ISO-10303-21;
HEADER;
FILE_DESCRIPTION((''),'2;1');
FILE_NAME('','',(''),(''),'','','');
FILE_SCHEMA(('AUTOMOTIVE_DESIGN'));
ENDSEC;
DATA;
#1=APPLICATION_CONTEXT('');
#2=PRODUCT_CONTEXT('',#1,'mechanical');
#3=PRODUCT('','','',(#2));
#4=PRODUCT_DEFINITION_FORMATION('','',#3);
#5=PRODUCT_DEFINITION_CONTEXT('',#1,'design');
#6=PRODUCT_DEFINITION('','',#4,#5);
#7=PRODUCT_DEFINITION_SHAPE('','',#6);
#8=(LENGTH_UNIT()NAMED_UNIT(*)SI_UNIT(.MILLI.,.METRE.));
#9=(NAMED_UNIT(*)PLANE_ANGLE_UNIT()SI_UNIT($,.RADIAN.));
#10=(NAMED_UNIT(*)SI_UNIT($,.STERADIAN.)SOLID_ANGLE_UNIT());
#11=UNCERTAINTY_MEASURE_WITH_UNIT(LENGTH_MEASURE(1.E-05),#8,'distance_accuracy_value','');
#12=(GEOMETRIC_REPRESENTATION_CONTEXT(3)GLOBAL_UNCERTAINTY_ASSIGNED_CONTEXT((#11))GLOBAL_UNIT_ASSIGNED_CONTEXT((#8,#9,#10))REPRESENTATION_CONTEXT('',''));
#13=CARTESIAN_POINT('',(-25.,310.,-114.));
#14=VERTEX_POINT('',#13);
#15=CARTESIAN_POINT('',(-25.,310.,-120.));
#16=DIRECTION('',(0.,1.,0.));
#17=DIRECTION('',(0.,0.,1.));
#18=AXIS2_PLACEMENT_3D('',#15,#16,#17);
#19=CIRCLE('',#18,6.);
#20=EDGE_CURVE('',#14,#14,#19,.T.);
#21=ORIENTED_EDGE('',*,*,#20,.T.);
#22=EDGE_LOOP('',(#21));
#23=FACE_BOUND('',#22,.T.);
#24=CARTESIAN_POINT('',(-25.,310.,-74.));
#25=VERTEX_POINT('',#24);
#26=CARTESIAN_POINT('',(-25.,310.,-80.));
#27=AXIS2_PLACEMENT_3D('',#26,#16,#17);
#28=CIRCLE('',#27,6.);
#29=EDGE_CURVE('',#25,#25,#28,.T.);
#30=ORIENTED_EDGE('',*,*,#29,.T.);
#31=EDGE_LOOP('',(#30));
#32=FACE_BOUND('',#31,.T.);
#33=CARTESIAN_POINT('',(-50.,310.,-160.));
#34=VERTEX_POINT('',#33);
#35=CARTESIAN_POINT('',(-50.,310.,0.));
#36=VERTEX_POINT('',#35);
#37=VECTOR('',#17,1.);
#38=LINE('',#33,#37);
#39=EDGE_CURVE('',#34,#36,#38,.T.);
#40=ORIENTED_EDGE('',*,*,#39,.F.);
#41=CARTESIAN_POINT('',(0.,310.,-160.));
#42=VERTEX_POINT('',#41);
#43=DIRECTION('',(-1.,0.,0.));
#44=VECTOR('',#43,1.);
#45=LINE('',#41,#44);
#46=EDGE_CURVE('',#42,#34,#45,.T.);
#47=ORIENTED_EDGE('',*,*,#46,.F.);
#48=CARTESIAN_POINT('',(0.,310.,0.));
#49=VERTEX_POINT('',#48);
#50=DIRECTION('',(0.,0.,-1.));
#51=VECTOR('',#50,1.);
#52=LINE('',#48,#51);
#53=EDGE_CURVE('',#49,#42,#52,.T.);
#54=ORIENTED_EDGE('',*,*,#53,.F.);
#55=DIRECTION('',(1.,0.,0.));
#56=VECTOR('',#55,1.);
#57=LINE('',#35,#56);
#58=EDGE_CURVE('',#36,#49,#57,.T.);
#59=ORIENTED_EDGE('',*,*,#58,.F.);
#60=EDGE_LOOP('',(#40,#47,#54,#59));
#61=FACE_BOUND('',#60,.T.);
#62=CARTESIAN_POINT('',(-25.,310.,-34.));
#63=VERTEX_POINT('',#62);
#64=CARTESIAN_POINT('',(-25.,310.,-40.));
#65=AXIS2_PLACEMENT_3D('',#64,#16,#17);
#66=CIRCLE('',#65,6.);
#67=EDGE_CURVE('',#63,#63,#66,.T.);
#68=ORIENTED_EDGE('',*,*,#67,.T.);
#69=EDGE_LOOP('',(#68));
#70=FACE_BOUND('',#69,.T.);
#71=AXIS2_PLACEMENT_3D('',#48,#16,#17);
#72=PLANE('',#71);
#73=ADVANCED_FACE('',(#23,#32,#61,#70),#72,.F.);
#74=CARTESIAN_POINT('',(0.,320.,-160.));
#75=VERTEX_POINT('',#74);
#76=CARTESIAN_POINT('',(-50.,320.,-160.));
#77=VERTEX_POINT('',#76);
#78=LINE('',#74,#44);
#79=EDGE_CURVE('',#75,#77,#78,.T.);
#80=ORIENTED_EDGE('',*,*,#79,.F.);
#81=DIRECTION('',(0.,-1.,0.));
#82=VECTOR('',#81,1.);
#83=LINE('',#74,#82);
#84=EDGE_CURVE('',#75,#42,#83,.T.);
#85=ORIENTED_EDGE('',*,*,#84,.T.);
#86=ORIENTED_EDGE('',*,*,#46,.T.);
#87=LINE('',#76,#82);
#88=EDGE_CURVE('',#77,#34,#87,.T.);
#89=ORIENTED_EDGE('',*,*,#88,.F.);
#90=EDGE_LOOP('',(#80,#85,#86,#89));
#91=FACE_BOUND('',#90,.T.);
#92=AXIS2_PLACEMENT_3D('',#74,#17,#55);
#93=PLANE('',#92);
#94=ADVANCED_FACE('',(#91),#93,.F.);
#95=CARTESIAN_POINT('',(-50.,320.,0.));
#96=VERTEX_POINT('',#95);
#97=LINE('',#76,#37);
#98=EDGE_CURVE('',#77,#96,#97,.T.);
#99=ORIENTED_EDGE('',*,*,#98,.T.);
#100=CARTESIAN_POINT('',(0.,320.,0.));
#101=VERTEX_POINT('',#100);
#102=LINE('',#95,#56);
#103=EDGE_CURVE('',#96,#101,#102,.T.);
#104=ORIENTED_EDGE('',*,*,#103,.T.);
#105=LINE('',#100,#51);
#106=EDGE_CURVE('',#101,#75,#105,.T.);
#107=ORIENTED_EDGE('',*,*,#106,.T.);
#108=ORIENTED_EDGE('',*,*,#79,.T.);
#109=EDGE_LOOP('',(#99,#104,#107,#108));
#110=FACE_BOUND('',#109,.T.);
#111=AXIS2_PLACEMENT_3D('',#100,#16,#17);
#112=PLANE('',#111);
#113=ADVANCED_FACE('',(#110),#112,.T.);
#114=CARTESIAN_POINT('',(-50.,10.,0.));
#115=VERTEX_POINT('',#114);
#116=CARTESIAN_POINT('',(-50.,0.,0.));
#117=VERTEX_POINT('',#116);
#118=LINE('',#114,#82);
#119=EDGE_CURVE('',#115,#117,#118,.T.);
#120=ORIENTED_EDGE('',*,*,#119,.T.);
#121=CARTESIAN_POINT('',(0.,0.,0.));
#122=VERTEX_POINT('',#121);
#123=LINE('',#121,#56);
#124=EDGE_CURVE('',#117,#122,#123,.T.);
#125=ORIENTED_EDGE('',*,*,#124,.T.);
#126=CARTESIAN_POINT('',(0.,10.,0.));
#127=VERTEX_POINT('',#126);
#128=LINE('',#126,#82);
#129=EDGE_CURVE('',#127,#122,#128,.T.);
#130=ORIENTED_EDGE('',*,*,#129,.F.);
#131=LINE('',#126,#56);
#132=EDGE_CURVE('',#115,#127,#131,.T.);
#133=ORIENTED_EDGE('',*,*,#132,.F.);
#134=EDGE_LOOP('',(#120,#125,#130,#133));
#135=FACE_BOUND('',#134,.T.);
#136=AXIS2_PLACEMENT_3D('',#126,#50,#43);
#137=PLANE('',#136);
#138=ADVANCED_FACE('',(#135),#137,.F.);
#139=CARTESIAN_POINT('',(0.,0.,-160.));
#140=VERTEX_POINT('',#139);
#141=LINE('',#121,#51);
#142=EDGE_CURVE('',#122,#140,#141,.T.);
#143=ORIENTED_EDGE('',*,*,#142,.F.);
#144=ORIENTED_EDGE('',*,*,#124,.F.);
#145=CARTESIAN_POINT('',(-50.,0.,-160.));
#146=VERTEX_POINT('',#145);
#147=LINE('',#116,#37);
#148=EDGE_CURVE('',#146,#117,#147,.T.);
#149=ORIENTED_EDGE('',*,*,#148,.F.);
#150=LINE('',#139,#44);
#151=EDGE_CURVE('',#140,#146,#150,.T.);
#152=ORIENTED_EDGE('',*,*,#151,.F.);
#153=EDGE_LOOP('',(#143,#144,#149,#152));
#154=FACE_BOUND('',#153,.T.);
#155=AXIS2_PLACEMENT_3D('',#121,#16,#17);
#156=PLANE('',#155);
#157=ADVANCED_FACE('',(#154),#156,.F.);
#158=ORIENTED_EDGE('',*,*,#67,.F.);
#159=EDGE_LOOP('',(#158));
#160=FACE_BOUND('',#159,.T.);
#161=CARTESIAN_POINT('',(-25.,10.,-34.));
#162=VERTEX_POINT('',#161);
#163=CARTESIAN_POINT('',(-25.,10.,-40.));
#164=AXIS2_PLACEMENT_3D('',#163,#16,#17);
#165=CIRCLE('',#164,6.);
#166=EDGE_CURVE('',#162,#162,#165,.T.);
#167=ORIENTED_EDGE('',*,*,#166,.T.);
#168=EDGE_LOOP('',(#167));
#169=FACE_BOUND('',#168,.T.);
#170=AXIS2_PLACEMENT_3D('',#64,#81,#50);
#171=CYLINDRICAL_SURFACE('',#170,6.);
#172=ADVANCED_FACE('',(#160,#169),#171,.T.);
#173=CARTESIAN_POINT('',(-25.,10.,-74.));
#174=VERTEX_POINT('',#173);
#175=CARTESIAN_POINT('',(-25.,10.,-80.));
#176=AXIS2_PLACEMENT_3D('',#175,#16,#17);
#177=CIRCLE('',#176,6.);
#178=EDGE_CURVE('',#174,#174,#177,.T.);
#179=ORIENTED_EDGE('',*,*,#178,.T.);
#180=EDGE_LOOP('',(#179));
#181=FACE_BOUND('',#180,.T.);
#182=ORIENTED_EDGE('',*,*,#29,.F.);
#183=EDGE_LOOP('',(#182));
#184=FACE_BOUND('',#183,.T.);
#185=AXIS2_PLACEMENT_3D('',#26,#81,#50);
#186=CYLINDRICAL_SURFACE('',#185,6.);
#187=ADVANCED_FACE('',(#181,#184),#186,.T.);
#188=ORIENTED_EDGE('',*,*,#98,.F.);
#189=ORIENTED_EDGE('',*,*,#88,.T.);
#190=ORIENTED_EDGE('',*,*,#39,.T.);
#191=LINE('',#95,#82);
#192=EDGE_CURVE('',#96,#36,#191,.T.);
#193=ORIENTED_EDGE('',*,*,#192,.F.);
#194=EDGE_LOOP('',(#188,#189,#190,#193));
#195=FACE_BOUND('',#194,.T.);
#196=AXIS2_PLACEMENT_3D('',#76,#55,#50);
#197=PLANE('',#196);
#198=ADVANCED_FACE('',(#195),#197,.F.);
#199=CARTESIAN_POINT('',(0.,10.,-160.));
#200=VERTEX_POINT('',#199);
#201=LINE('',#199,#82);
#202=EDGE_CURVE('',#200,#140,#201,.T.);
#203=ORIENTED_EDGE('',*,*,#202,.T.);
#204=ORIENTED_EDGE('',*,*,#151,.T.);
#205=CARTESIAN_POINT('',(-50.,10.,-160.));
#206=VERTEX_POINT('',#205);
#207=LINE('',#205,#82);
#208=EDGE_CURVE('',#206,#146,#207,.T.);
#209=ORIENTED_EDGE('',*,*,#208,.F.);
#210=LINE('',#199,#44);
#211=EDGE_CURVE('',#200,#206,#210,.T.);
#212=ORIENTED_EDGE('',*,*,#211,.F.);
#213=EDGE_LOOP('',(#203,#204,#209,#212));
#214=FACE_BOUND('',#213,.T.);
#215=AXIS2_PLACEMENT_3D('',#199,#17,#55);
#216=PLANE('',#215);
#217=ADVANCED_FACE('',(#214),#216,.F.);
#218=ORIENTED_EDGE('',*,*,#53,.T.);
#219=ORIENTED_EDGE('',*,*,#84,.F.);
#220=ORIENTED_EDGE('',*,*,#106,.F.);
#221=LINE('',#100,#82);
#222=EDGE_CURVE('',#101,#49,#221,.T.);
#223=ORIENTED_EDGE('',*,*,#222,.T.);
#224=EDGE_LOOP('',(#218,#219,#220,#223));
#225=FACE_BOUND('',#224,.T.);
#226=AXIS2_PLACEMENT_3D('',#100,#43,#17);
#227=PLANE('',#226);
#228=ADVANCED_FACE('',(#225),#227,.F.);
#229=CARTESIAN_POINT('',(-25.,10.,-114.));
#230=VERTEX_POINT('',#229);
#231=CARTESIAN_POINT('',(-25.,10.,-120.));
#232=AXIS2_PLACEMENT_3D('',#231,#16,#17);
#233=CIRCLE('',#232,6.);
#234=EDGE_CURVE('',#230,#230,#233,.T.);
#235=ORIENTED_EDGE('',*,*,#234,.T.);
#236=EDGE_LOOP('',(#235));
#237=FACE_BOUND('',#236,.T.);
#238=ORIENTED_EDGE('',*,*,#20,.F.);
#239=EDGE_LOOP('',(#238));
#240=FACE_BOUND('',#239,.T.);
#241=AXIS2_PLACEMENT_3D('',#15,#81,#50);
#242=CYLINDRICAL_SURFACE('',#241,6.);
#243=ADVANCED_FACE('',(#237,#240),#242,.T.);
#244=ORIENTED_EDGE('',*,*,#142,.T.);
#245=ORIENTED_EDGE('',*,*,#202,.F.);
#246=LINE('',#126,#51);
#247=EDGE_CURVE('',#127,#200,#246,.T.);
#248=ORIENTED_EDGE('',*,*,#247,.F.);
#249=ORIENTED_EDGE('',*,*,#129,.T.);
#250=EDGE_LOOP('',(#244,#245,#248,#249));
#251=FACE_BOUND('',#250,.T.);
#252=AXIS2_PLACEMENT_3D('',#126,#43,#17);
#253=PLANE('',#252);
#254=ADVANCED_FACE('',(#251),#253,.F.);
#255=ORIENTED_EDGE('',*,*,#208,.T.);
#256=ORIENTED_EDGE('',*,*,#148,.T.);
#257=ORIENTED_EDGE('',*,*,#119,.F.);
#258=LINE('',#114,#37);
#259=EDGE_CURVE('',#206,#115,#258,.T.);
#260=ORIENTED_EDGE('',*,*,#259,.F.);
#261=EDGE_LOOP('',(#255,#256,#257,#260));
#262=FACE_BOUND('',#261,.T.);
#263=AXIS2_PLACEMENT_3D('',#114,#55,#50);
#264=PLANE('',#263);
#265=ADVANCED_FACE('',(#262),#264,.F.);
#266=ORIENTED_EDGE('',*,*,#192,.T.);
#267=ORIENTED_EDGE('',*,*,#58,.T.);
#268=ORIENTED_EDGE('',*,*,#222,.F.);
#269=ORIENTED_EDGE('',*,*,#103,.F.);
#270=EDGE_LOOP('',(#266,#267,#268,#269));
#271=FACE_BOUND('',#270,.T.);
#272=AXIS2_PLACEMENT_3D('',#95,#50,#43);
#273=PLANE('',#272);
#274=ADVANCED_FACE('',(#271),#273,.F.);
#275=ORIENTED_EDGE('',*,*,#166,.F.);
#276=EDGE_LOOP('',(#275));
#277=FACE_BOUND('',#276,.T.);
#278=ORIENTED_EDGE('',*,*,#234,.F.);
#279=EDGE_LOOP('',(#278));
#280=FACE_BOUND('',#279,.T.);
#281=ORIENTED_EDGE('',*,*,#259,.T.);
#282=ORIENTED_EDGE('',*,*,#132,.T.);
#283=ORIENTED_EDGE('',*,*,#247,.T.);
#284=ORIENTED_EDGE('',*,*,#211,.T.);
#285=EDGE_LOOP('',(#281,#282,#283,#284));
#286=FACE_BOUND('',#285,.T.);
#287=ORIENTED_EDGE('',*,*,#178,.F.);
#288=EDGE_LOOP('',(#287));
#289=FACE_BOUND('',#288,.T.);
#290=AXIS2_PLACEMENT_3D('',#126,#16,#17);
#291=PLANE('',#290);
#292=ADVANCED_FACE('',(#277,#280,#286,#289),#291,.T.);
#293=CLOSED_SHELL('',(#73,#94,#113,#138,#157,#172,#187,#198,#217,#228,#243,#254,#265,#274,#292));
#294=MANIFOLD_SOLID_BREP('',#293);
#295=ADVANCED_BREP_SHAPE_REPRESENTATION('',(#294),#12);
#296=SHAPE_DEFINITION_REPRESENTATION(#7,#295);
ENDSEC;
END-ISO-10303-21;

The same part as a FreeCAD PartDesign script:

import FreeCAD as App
import Part
import Sketcher
from FreeCAD import Vector
Q = App.Units.Quantity

doc = App.newDocument("Part")
body = doc.addObject("PartDesign::Body", "Body")

# Sketch on XZ plane
sketch1 = doc.addObject("Sketcher::SketchObject", "Sketch")
body.addObject(sketch1)
sketch1.AttachmentSupport = (doc.XZ_Plane, [""])
sketch1.MapMode = "FlatFace"
sketch1.addGeometry([
    Part.LineSegment(Vector(-50, -160, 0), Vector(-50, 0, 0)),
    Part.LineSegment(Vector(-50, 0, 0), Vector(0, 0, 0)),
    Part.LineSegment(Vector(0, 0, 0), Vector(0, -160, 0)),
    Part.LineSegment(Vector(0, -160, 0), Vector(-50, -160, 0)),
], False)
sketch1.addConstraint([
    Sketcher.Constraint("Coincident", 0, 2, 1, 1),
    Sketcher.Constraint("Coincident", 1, 2, 2, 1),
    Sketcher.Constraint("Coincident", 2, 2, 3, 1),
    Sketcher.Constraint("Coincident", 3, 2, 0, 1),
    Sketcher.Constraint("Vertical", 0),
    Sketcher.Constraint("Horizontal", 1),
    Sketcher.Constraint("Vertical", 2),
    Sketcher.Constraint("Horizontal", 3),
    Sketcher.Constraint("Coincident", 1, 2, -1, 1),
    Sketcher.Constraint("DistanceX", 1, 1, 1, 2, Q("50 mm")),
    Sketcher.Constraint("DistanceY", 0, 1, 0, 2, Q("160 mm")),
])
pad1 = doc.addObject("PartDesign::Pad", "Pad")
body.addObject(pad1)
pad1.Profile = sketch1
pad1.Length = 10
pad1.Reversed = True

# Sketch on XZ plane
sketch2 = doc.addObject("Sketcher::SketchObject", "Sketch001")
body.addObject(sketch2)
sketch2.AttachmentSupport = (doc.XZ_Plane, [""])
sketch2.MapMode = "FlatFace"
sketch2.AttachmentOffset = App.Placement(Vector(0, 0, -10), App.Rotation())
sketch2.addGeometry([
    Part.Circle(Vector(-25, -120, 0), Vector(0, 0, 1), 6),
    Part.Circle(Vector(-25, -80, 0), Vector(0, 0, 1), 6),
    Part.Circle(Vector(-25, -40, 0), Vector(0, 0, 1), 6),
], False)
sketch2.addConstraint([
    Sketcher.Constraint("Equal", 0, 1),
    Sketcher.Constraint("Equal", 1, 2),
    Sketcher.Constraint("Vertical", 0, 3, 1, 3),
    Sketcher.Constraint("Vertical", 1, 3, 2, 3),
    Sketcher.Constraint("Diameter", 0, Q("12 mm")),
    Sketcher.Constraint("DistanceX", 0, 3, -1, 1, Q("25 mm")),
    Sketcher.Constraint("DistanceY", 0, 3, -1, 1, Q("120 mm")),
    Sketcher.Constraint("DistanceY", 1, 3, -1, 1, Q("80 mm")),
    Sketcher.Constraint("DistanceY", 2, 3, -1, 1, Q("40 mm")),
])
pad2 = doc.addObject("PartDesign::Pad", "Pad001")
body.addObject(pad2)
pad2.Profile = sketch2
pad2.Length = 300
pad2.Reversed = True

# Sketch on XZ plane
sketch3 = doc.addObject("Sketcher::SketchObject", "Sketch002")
body.addObject(sketch3)
sketch3.AttachmentSupport = (doc.XZ_Plane, [""])
sketch3.MapMode = "FlatFace"
sketch3.AttachmentOffset = App.Placement(Vector(0, 0, -310), App.Rotation())
sketch3.addGeometry([
    Part.LineSegment(Vector(-50, -160, 0), Vector(-50, 0, 0)),
    Part.LineSegment(Vector(-50, 0, 0), Vector(0, 0, 0)),
    Part.LineSegment(Vector(0, 0, 0), Vector(0, -160, 0)),
    Part.LineSegment(Vector(0, -160, 0), Vector(-50, -160, 0)),
], False)
sketch3.addConstraint([
    Sketcher.Constraint("Coincident", 0, 2, 1, 1),
    Sketcher.Constraint("Coincident", 1, 2, 2, 1),
    Sketcher.Constraint("Coincident", 2, 2, 3, 1),
    Sketcher.Constraint("Coincident", 3, 2, 0, 1),
    Sketcher.Constraint("Vertical", 0),
    Sketcher.Constraint("Horizontal", 1),
    Sketcher.Constraint("Vertical", 2),
    Sketcher.Constraint("Horizontal", 3),
    Sketcher.Constraint("Coincident", 1, 2, -1, 1),
    Sketcher.Constraint("DistanceX", 1, 1, 1, 2, Q("50 mm")),
    Sketcher.Constraint("DistanceY", 0, 1, 0, 2, Q("160 mm")),
])
pad3 = doc.addObject("PartDesign::Pad", "Pad002")
body.addObject(pad3)
pad3.Profile = sketch3
pad3.Length = 10
pad3.Reversed = True

doc.recompute()
